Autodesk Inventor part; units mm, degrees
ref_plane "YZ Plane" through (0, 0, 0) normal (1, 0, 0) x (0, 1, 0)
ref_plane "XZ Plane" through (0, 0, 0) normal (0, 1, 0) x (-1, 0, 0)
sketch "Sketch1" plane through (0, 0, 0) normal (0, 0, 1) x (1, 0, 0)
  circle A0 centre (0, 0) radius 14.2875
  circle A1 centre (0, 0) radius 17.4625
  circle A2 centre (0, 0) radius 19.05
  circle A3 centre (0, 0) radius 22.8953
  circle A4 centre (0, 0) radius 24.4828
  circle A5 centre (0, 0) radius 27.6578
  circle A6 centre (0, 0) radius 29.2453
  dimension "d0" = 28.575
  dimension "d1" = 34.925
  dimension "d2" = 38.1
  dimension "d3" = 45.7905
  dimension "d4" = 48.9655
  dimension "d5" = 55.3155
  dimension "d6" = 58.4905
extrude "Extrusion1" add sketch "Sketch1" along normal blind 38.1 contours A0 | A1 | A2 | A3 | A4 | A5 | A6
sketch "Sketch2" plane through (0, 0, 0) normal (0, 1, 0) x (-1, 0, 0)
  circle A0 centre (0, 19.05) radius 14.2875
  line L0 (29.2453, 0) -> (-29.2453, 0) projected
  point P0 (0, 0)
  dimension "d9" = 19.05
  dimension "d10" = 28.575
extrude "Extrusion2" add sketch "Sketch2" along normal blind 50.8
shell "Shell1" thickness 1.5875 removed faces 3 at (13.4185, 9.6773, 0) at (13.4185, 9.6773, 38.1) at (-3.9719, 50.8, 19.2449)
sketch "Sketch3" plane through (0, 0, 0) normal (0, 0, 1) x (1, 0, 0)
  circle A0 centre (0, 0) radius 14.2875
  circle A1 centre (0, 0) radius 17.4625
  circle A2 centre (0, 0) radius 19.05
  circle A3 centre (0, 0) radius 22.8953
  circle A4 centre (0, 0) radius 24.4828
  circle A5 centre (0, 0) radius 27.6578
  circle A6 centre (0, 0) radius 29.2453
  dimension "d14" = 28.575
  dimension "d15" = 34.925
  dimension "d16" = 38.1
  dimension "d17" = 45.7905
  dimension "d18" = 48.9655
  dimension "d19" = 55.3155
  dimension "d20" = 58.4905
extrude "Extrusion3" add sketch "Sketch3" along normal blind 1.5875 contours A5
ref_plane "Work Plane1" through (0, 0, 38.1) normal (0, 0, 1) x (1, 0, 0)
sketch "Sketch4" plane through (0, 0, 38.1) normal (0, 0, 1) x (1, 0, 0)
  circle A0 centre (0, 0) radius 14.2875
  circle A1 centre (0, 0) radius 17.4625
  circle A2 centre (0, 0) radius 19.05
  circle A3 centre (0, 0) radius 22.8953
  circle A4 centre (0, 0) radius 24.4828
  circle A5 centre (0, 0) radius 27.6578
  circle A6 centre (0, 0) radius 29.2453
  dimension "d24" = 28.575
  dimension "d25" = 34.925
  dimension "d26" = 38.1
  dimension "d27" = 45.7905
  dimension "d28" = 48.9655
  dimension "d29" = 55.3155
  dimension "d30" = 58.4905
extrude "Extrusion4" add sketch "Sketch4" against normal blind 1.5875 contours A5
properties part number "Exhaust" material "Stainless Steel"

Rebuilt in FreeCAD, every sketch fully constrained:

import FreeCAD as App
import Part
import Sketcher

V = App.Vector
Q = App.Units.Quantity


def faces_at(feature, points):
    """Names of the faces that lie closest to the given points."""
    faces = feature.Shape.Faces
    near = lambda p: min(range(len(faces)), key=lambda i: faces[i].distToShape(Part.Vertex(*p))[0])
    return sorted({f"Face{near(p) + 1}" for p in points})

doc = App.newDocument("Part")
body = doc.addObject("PartDesign::Body", "Body")

# Sketch on XY plane
sketch1 = doc.addObject("Sketcher::SketchObject", "Sketch")
body.addObject(sketch1)
sketch1.AttachmentSupport = (doc.XY_Plane, [""])
sketch1.MapMode = "FlatFace"
sketch1.addGeometry(Part.Circle(V(0, 0, 0), V(0, 0, 1), 29), False)
sketch1.addConstraint(Sketcher.Constraint("Coincident", 0, 3, -1, 1))
sketch1.addConstraint(Sketcher.Constraint("Diameter", 0, 58.4906))
pad1 = doc.addObject("PartDesign::Pad", "Pad")
body.addObject(pad1)
pad1.Profile = sketch1
pad1.Length = Q("1.5 in")

# Sketch on XZ plane
sketch2 = doc.addObject("Sketcher::SketchObject", "Sketch001")
body.addObject(sketch2)
sketch2.AttachmentSupport = (doc.XZ_Plane, [""])
sketch2.MapMode = "FlatFace"
sketch2.addGeometry(Part.Circle(V(0, 19, 0), V(0, 0, 1), 14), False)
sketch2.addConstraint(Sketcher.Constraint("PointOnObject", 0, 3, -2))
sketch2.addConstraint(Sketcher.Constraint("Diameter", 0, Q("1.125 in")))
sketch2.addConstraint(Sketcher.Constraint("DistanceY", -1, 1, 0, 3, Q("0.75 in")))
pad2 = doc.addObject("PartDesign::Pad", "Pad001")
body.addObject(pad2)
pad2.Profile = sketch2
pad2.Length = Q("2 in")
pad2.Reversed = True
doc.recompute()

thickness = doc.addObject("PartDesign::Thickness", "Thickness")
body.addObject(thickness)
thickness.Base = (pad2, faces_at(pad2, [(13.418, 9.677, 0), (13.418, 9.677, 38.1), (-3.972, 50.8, 19.245)]))
thickness.Value = Q("0.0625 in")
thickness.Reversed = True
thickness.Join = "Intersection"

# Sketch on XY plane
sketch3 = doc.addObject("Sketcher::SketchObject", "Sketch002")
body.addObject(sketch3)
sketch3.AttachmentSupport = (doc.XY_Plane, [""])
sketch3.MapMode = "FlatFace"
sketch3.addGeometry(Part.Circle(V(0, 0, 0), V(0, 0, 1), 28), False)
sketch3.addGeometry(Part.Circle(V(0, 0, 0), V(0, 0, 1), 24), False)
sketch3.addConstraint(Sketcher.Constraint("Coincident", 0, 3, -1, 1))
sketch3.addConstraint(Sketcher.Constraint("Coincident", 1, 3, -1, 1))
sketch3.addConstraint(Sketcher.Constraint("Diameter", 0, 55.3156))
sketch3.addConstraint(Sketcher.Constraint("Diameter", 1, 48.9656))
pad3 = doc.addObject("PartDesign::Pad", "Pad002")
body.addObject(pad3)
pad3.Profile = sketch3
pad3.Length = Q("0.0625 in")

# Sketch on XY plane
sketch4 = doc.addObject("Sketcher::SketchObject", "Sketch003")
body.addObject(sketch4)
sketch4.AttachmentSupport = (doc.XY_Plane, [""])
sketch4.MapMode = "FlatFace"
sketch4.AttachmentOffset = App.Placement(V(0, 0, 1.5 * 25.4), App.Rotation())
sketch4.addGeometry(Part.Circle(V(0, 0, 0), V(0, 0, 1), 28), False)
sketch4.addGeometry(Part.Circle(V(0, 0, 0), V(0, 0, 1), 24), False)
sketch4.addConstraint(Sketcher.Constraint("Coincident", 0, 3, -1, 1))
sketch4.addConstraint(Sketcher.Constraint("Coincident", 1, 3, -1, 1))
sketch4.addConstraint(Sketcher.Constraint("Diameter", 0, 55.3156))
sketch4.addConstraint(Sketcher.Constraint("Diameter", 1, 48.9656))
pad4 = doc.addObject("PartDesign::Pad", "Pad003")
body.addObject(pad4)
pad4.Profile = sketch4
pad4.Length = Q("0.0625 in")
pad4.Reversed = True

doc.recompute()
